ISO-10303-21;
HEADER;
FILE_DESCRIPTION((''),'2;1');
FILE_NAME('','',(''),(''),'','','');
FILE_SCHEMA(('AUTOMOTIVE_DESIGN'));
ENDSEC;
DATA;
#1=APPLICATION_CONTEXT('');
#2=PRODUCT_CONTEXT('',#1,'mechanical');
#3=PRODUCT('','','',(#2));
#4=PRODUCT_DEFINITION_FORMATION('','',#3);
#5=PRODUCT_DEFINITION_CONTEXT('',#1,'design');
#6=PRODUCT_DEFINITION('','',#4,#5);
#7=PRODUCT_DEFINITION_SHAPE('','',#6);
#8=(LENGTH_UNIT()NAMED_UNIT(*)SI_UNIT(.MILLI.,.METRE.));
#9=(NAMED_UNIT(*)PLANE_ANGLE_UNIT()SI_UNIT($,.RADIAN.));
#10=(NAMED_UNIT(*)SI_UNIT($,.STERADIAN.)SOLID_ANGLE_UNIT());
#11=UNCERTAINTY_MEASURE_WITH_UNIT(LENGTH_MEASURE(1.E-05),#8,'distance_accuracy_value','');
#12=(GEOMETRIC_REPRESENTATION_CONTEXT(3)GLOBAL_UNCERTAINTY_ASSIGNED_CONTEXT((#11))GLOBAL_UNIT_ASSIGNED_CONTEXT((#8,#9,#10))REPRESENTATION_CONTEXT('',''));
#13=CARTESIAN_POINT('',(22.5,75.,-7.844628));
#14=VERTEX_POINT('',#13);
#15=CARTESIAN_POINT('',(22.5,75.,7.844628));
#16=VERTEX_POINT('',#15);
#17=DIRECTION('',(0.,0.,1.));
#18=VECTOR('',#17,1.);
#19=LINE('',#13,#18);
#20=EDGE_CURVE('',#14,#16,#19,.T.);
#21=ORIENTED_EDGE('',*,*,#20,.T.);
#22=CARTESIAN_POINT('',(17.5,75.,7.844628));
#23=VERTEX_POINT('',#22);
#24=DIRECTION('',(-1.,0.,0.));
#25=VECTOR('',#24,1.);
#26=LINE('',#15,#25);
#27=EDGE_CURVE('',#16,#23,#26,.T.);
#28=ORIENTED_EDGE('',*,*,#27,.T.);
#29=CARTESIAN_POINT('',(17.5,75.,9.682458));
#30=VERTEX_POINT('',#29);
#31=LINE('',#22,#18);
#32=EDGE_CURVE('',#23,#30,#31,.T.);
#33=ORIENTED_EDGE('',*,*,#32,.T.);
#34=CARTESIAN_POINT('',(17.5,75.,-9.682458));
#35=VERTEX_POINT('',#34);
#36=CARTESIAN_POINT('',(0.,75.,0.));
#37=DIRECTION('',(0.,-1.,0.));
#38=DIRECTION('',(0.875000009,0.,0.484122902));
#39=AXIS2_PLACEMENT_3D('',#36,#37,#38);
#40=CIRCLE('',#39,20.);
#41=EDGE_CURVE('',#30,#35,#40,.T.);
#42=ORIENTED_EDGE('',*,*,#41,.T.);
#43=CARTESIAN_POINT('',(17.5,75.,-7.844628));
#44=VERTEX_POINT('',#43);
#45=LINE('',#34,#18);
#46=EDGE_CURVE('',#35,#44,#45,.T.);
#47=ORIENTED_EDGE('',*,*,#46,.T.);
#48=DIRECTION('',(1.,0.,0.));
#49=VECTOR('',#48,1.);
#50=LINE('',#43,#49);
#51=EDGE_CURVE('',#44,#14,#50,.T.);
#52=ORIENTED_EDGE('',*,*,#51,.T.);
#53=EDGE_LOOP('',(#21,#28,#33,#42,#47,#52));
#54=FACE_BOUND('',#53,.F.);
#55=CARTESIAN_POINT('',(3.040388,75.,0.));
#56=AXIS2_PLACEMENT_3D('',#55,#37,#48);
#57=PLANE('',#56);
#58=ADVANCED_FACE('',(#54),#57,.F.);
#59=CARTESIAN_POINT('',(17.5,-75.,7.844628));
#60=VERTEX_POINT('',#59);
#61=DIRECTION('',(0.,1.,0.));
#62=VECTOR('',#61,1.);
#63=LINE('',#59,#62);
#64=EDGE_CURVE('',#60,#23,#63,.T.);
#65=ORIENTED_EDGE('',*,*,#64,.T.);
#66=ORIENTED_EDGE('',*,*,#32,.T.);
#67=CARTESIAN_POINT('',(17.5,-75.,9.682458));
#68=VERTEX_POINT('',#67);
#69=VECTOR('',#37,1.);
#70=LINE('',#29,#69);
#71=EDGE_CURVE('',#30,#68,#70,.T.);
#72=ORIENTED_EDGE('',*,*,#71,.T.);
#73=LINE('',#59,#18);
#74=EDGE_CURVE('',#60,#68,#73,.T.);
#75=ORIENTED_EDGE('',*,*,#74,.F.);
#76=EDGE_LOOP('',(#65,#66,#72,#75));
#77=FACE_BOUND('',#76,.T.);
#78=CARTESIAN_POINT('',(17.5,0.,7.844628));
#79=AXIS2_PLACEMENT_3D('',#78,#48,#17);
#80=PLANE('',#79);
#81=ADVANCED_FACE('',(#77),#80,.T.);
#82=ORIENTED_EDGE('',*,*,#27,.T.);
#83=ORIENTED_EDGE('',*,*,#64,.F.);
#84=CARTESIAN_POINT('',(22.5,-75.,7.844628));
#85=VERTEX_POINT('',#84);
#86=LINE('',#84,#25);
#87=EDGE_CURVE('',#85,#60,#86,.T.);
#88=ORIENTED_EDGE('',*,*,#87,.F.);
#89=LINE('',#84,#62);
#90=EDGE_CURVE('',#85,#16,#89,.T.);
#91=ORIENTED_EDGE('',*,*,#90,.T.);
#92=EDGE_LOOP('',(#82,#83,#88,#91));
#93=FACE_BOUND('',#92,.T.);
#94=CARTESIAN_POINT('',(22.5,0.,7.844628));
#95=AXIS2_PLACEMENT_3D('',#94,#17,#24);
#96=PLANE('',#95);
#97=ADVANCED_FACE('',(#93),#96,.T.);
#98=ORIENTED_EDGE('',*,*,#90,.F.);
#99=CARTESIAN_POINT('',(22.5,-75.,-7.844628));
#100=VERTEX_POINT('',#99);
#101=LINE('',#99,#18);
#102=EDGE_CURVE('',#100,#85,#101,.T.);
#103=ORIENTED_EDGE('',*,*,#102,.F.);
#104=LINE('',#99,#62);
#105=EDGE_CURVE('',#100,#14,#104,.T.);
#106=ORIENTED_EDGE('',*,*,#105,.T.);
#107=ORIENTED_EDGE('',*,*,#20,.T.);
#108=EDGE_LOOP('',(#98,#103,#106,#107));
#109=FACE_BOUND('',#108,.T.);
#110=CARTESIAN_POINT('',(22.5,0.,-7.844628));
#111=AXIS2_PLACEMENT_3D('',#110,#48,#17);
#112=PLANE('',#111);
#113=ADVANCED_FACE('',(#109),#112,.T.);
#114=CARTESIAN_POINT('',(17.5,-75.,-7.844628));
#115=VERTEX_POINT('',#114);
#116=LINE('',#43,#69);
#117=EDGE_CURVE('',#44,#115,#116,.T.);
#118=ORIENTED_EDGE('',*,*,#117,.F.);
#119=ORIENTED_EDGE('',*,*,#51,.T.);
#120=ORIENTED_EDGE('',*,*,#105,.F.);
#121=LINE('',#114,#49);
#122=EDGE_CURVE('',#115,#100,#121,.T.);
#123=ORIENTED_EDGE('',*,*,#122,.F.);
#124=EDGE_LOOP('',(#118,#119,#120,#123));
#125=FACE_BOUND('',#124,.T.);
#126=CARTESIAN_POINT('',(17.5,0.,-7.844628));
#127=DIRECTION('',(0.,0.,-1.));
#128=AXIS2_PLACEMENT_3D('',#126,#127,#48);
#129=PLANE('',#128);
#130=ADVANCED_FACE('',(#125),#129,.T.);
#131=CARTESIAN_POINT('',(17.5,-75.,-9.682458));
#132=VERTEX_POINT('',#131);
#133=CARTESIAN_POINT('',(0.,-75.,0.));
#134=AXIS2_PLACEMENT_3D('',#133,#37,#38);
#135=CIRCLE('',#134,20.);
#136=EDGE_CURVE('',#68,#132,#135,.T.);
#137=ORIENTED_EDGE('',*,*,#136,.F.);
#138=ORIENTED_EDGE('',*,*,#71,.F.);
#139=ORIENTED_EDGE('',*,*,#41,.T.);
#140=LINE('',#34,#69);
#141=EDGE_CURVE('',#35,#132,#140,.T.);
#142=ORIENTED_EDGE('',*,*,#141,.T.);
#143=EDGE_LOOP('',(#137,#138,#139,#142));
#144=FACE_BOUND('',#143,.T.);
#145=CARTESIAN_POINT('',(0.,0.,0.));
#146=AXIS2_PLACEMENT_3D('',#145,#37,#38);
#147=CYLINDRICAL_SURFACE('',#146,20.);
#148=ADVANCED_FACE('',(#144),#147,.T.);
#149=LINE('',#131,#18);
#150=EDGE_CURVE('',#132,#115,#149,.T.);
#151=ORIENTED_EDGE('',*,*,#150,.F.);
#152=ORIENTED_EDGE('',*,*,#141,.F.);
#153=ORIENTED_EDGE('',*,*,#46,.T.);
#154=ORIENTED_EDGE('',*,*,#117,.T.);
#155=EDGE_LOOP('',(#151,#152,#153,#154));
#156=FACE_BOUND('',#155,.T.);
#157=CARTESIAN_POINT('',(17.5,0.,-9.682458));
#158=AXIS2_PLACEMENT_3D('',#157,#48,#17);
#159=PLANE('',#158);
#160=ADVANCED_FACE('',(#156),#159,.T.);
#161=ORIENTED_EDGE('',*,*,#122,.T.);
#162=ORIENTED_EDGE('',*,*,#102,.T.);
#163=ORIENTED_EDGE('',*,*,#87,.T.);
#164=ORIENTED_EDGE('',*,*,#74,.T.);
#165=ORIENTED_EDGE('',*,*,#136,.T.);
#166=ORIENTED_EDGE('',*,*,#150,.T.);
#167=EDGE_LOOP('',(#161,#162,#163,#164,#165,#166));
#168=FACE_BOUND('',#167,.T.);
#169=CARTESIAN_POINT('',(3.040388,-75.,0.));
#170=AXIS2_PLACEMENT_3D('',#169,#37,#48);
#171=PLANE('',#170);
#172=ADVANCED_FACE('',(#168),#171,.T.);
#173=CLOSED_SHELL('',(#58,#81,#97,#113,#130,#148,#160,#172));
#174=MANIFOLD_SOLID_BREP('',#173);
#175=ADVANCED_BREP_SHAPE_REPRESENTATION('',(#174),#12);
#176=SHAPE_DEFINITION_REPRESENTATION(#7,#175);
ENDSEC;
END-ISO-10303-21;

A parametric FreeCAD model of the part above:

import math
import FreeCAD as App
import Part
import Sketcher
from FreeCAD import Vector
Q = App.Units.Quantity

doc = App.newDocument("Part")
body = doc.addObject("PartDesign::Body", "Body")

# Sketch on XZ plane
sketch1 = body.newObject("Sketcher::SketchObject", "Sketch")
sketch1.AttachmentSupport = (doc.getObject("XZ_Plane"), [""])
sketch1.MapMode = "FlatFace"
sketch1.addGeometry([
    Part.LineSegment(Vector(17.5, 7.8, 0), Vector(17.5, 9.7, 0)),  # 0
    Part.ArcOfCircle(Part.Circle(Vector(0, 0, 0), Vector(0, 0, 1), 20), math.radians(29), math.radians(331)),  # 1
    Part.LineSegment(Vector(17.5, -9.7, 0), Vector(17.5, -7.8, 0)),  # 2
    Part.LineSegment(Vector(17.5, -7.8, 0), Vector(22.5, -7.8, 0)),  # 3
    Part.LineSegment(Vector(22.5, -7.8, 0), Vector(22.5, 7.8, 0)),  # 4
    Part.LineSegment(Vector(22.5, 7.8, 0), Vector(17.5, 7.8, 0)),  # 5
], False)
sketch1.addConstraint([
    Sketcher.Constraint("Coincident", 0, 2, 1, 1),
    Sketcher.Constraint("Coincident", 1, 2, 2, 1),
    Sketcher.Constraint("Coincident", 2, 2, 3, 1),
    Sketcher.Constraint("Coincident", 3, 2, 4, 1),
    Sketcher.Constraint("Coincident", 4, 2, 5, 1),
    Sketcher.Constraint("Coincident", 5, 2, 0, 1),
    Sketcher.Constraint("Vertical", 0),
    Sketcher.Constraint("Vertical", 2),
    Sketcher.Constraint("Horizontal", 3),
    Sketcher.Constraint("Vertical", 4),
    Sketcher.Constraint("Horizontal", 5),
    Sketcher.Constraint("Coincident", 1, 3, -1, 1),
    Sketcher.Constraint("Symmetric", 2, 2, 5, 2, -1),
    Sketcher.Constraint("Radius", 1, Q("20 mm")),
    Sketcher.Constraint("DistanceX", 3, 1, 3, 2, Q("5 mm")),
    Sketcher.Constraint("DistanceX", -1, 1, 0, 2, Q("17.5 mm")),
    Sketcher.Constraint("DistanceY", 0, 1, 0, 2, Q("1.83783 mm")),
])
pad1 = body.newObject("PartDesign::Pad", "Pad")
pad1.Profile = sketch1
pad1.Length = 150
pad1.Midplane = True

doc.recompute()
